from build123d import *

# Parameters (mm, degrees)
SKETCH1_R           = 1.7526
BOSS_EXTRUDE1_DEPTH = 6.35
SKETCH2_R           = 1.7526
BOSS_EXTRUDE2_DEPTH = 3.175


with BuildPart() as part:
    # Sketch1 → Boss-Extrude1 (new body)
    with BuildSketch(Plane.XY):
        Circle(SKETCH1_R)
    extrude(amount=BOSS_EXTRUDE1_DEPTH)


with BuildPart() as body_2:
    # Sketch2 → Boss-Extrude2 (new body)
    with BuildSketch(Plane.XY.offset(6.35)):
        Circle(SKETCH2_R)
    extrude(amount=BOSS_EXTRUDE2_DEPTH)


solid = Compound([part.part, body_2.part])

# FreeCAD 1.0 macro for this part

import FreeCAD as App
import Part
import Sketcher
Q = App.Units.Quantity

doc = App.newDocument("Part")
body = doc.addObject("PartDesign::Body", "Body")

sketch1 = body.newObject("Sketcher::SketchObject", "Sketch")
sketch1.AttachmentSupport = (doc.getObject("XY_Plane"), [""])
sketch1.MapMode = "FlatFace"
sketch1.addGeometry(Part.Circle(App.Vector(0, 0, 0), App.Vector(0, 0, 1), 1.8), False)
sketch1.addConstraint(Sketcher.Constraint("Coincident", 0, 3, -1, 1))
sketch1.addConstraint(Sketcher.Constraint("Diameter", 0, Q("0.138 in")))
pad1 = body.newObject("PartDesign::Pad", "Pad")
pad1.Profile = sketch1
pad1.Length = Q("0.25 in")
body2 = doc.addObject("PartDesign::Body", "Body001")

sketch2 = body2.newObject("Sketcher::SketchObject", "Sketch001")
sketch2.AttachmentSupport = (doc.getObject("XY_Plane001"), [""])
sketch2.MapMode = "FlatFace"
sketch2.AttachmentOffset = App.Placement(App.Vector(0, 0, 0.25 * 25.4), App.Rotation())
sketch2.addGeometry(Part.Circle(App.Vector(0, 0, 0), App.Vector(0, 0, 1), 1.8), False)
sketch2.addConstraint(Sketcher.Constraint("Coincident", 0, 3, -1, 1))
sketch2.addConstraint(Sketcher.Constraint("Diameter", 0, Q("0.138 in")))
pad2 = body2.newObject("PartDesign::Pad", "Pad001")
pad2.Profile = sketch2
pad2.Length = Q("0.125 in")

doc.recompute()
